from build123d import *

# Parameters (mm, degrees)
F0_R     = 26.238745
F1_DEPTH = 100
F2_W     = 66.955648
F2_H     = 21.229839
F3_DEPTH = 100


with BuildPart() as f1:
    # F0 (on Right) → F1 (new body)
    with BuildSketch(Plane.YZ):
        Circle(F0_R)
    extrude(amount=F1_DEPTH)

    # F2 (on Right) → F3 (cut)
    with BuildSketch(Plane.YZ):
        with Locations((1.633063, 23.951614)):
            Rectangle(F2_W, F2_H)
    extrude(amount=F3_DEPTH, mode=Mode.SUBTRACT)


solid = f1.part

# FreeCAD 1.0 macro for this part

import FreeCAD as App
import Part
import Sketcher

V = App.Vector

doc = App.newDocument("Part")
params = doc.addObject("Spreadsheet::Sheet", "Params")
for row, (alias, value) in enumerate([
    ("pad1_length", "100 mm"),
    ("pocket1_length", "100 mm"),
], start=1):
    params.set(f"A{row}", alias)
    params.set(f"B{row}", "=" + value)
    params.setAlias(f"B{row}", alias)

body = doc.addObject("PartDesign::Body", "Body")

sketch1 = body.newObject("Sketcher::SketchObject", "Sketch")
sketch1.AttachmentSupport = (doc.getObject("YZ_Plane"), [""])
sketch1.MapMode = "FlatFace"
sketch1.addGeometry(Part.Circle(V(0, 0, 0), V(0, 0, 1), 26), False)
sketch1.addConstraint([
    Sketcher.Constraint("Coincident", 0, 3, -1, 1),
    Sketcher.Constraint("Diameter", 0, 52.47749),
])
pad1 = body.newObject("PartDesign::Pad", "Pad")
pad1.Profile = sketch1
pad1.setExpression("Length", "Params.pad1_length")

sketch2 = body.newObject("Sketcher::SketchObject", "Sketch001")
sketch2.AttachmentSupport = (doc.getObject("YZ_Plane"), [""])
sketch2.MapMode = "FlatFace"
sketch2.addGeometry([
    Part.LineSegment(V(-32, 35, 0), V(-32, 13, 0)),
    Part.LineSegment(V(-32, 13, 0), V(35, 13, 0)),
    Part.LineSegment(V(35, 13, 0), V(35, 35, 0)),
    Part.LineSegment(V(35, 35, 0), V(-32, 35, 0)),
], False)
sketch2.addConstraint([
    Sketcher.Constraint("Coincident", 0, 2, 1, 1),
    Sketcher.Constraint("Coincident", 1, 2, 2, 1),
    Sketcher.Constraint("Coincident", 2, 2, 3, 1),
    Sketcher.Constraint("Coincident", 3, 2, 0, 1),
    Sketcher.Constraint("Vertical", 0),
    Sketcher.Constraint("Horizontal", 1),
    Sketcher.Constraint("Vertical", 2),
    Sketcher.Constraint("Horizontal", 3),
    Sketcher.Constraint("DistanceY", 0, 2, 0, 1, 21.229839),
    Sketcher.Constraint("DistanceX", 1, 1, 1, 2, 66.955648),
    Sketcher.Constraint("DistanceX", 0, 2, -1, 1, 31.844761),
    Sketcher.Constraint("DistanceY", -1, 1, 0, 2, 13.336695),
])
pocket1 = body.newObject("PartDesign::Pocket", "Pocket")
pocket1.Profile = sketch2
pocket1.setExpression("Length", "Params.pocket1_length")
pocket1.Reversed = True

doc.recompute()
